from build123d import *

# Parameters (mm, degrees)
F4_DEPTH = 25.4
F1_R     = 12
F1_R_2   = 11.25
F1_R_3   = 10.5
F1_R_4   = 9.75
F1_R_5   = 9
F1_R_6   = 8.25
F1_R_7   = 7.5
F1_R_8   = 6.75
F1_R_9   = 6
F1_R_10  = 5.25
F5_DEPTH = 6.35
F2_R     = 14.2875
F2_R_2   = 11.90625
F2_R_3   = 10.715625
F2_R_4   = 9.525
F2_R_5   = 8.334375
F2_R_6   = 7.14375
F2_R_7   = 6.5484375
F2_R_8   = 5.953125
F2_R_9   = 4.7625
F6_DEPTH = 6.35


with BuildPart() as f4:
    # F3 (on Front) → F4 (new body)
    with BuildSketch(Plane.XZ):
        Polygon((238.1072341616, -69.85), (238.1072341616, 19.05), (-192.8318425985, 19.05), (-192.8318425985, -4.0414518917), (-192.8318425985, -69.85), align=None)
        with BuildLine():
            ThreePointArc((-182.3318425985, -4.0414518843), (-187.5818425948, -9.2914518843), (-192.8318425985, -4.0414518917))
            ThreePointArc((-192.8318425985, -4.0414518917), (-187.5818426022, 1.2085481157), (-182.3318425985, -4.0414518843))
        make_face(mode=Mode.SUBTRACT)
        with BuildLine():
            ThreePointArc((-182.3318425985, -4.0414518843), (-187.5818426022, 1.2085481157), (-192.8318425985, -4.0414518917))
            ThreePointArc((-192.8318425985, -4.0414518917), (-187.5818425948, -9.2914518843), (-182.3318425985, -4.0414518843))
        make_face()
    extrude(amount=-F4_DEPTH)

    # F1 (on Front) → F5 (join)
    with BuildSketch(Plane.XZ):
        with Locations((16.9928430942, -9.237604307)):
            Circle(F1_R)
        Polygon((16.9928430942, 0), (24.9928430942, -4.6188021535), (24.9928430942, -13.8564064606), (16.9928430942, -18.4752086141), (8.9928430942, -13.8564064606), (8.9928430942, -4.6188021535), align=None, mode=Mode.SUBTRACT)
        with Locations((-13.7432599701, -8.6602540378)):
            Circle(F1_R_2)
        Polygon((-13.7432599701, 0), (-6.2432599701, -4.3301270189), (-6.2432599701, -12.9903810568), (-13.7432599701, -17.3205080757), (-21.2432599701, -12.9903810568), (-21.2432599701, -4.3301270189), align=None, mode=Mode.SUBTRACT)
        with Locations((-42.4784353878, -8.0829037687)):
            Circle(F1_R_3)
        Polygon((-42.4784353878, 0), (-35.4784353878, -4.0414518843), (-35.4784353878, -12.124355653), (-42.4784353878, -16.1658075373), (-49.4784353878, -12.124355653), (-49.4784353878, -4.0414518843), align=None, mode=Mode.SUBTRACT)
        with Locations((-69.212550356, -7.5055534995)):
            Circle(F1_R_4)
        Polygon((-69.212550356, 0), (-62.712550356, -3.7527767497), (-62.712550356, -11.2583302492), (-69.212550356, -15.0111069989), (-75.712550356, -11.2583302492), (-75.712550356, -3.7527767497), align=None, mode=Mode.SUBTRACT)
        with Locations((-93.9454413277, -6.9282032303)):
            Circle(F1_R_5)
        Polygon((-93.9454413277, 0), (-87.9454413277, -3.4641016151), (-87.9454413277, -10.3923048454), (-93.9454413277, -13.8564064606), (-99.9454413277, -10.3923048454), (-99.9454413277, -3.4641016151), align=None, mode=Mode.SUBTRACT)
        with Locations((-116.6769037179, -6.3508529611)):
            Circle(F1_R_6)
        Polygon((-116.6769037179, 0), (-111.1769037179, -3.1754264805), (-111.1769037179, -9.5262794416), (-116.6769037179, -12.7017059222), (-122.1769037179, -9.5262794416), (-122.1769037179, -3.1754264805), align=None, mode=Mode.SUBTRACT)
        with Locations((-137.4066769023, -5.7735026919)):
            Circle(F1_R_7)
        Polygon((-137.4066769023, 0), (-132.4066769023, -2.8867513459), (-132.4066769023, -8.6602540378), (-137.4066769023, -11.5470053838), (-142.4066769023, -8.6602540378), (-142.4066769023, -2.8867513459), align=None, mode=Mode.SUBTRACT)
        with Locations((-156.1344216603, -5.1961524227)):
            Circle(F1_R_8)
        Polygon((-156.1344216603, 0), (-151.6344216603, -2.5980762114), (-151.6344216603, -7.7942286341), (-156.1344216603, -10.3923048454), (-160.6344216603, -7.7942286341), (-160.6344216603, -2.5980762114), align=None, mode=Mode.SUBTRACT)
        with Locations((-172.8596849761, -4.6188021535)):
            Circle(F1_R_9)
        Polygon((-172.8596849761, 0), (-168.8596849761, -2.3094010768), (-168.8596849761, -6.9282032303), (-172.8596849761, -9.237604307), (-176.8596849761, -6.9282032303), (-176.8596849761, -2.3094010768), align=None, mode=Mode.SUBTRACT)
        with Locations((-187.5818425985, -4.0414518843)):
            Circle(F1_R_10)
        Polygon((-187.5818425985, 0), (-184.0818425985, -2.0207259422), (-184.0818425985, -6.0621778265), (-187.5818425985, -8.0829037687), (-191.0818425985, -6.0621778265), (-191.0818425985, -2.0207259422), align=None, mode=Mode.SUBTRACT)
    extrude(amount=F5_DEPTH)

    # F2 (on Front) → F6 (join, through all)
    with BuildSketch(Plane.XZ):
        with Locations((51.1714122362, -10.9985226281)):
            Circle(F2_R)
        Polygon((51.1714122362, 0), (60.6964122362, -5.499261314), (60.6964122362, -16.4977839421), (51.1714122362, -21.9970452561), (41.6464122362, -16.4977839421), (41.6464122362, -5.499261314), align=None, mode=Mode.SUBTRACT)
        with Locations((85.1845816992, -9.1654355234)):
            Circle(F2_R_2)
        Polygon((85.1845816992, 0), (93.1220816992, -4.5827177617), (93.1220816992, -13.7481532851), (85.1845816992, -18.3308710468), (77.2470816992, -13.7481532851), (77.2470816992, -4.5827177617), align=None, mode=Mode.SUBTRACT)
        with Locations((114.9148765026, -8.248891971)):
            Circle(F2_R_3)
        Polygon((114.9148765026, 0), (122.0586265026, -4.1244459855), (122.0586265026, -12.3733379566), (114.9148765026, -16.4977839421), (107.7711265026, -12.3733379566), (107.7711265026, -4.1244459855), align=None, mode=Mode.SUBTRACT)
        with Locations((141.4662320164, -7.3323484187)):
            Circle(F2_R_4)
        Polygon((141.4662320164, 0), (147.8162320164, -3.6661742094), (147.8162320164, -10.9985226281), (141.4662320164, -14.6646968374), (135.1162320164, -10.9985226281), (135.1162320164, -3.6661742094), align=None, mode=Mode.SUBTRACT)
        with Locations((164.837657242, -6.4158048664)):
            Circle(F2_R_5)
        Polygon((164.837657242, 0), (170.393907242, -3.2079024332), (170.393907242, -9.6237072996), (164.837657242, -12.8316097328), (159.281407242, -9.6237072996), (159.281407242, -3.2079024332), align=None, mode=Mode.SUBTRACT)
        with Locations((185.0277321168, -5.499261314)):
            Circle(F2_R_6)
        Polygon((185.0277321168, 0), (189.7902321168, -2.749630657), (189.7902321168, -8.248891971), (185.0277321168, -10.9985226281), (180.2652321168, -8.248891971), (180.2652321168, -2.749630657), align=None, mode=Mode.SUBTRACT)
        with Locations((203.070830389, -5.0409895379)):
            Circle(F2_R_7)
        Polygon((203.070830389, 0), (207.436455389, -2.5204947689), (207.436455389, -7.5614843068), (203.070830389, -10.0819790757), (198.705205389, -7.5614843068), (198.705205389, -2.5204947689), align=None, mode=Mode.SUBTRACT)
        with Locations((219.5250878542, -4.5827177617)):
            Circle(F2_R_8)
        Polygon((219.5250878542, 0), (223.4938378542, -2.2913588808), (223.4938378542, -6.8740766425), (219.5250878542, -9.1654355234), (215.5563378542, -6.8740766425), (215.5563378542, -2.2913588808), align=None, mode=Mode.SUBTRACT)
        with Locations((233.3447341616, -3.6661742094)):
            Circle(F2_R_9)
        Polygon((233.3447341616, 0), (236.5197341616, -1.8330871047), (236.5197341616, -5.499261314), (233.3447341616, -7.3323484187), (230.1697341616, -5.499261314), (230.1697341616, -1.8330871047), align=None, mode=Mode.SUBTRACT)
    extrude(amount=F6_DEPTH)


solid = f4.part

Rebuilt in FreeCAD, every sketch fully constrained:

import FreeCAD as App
import Part
import Sketcher
from FreeCAD import Vector
Q = App.Units.Quantity


def add_polygon(sketch, points):
    """Adds a closed chain of lines whose ends are joined by coincident constraints."""
    first, n = sketch.GeometryCount, len(points)
    for a, b in zip(points, points[1:] + points[:1]):
        sketch.addGeometry(Part.LineSegment(App.Vector(*a, 0), App.Vector(*b, 0)), False)
    for i in range(n):
        sketch.addConstraint(Sketcher.Constraint("Coincident", first + i, 2, first + (i + 1) % n, 1))

doc = App.newDocument("Part")
body = doc.addObject("PartDesign::Body", "Body")

# Sketch on XZ plane
sketch1 = body.newObject("Sketcher::SketchObject", "Sketch")
sketch1.AttachmentSupport = (doc.getObject("XZ_Plane"), [""])
sketch1.MapMode = "FlatFace"
add_polygon(sketch1, [(-193, -70), (238, -70), (238, 19), (-193, 19)])  # lines 0-3
sketch1.addConstraint([
    Sketcher.Constraint("Horizontal", 0),
    Sketcher.Constraint("Vertical", 1),
    Sketcher.Constraint("Horizontal", 2),
    Sketcher.Constraint("Vertical", 3),
    Sketcher.Constraint("DistanceY", 1, 1, 1, 2, Q("3.5 in")),
    Sketcher.Constraint("DistanceY", 0, 2, -1, 1, Q("2.75 in")),
    Sketcher.Constraint("DistanceX", 0, 1, 0, 2, Q("430.939077 mm")),
    Sketcher.Constraint("DistanceX", -1, 1, 0, 2, Q("238.107234 mm")),
])
pad1 = body.newObject("PartDesign::Pad", "Pad")
pad1.Profile = sketch1
pad1.Length = Q("1 in")
pad1.Reversed = True

# Sketch on XZ plane
sketch2 = body.newObject("Sketcher::SketchObject", "Sketch001")
sketch2.AttachmentSupport = (doc.getObject("XZ_Plane"), [""])
sketch2.MapMode = "FlatFace"
sketch2.addGeometry(Part.Circle(Vector(17, -9.2, 0), Vector(0, 0, 1), 12), False)  # 0
add_polygon(sketch2, [(9, -4.6), (17, 0), (25, -4.6), (25, -13.9), (17, -18.5), (9, -13.9)])  # lines 1-6
sketch2.addGeometry(Part.Circle(Vector(-13.7, -8.7, 0), Vector(0, 0, 1), 11.2), False)  # 7
add_polygon(sketch2, [(-21.2, -4.3), (-13.7, 0), (-6.2, -4.3), (-6.2, -13), (-13.7, -17.3), (-21.2, -13)])  # lines 8-13
sketch2.addGeometry(Part.Circle(Vector(-42.5, -8.1, 0), Vector(0, 0, 1), 10.5), False)  # 14
add_polygon(sketch2, [(-49.5, -4), (-42.5, 0), (-35.5, -4), (-35.5, -12.1), (-42.5, -16.2), (-49.5, -12.1)])  # lines 15-20
sketch2.addGeometry(Part.Circle(Vector(-69.2, -7.5, 0), Vector(0, 0, 1), 9.8), False)  # 21
add_polygon(sketch2, [(-75.7, -3.8), (-69.2, 0), (-62.7, -3.8), (-62.7, -11.3), (-69.2, -15), (-75.7, -11.3)])  # lines 22-27
sketch2.addGeometry(Part.Circle(Vector(-93.9, -6.9, 0), Vector(0, 0, 1), 9), False)  # 28
add_polygon(sketch2, [(-99.9, -3.5), (-93.9, 0), (-87.9, -3.5), (-87.9, -10.4), (-93.9, -13.9), (-99.9, -10.4)])  # lines 29-34
sketch2.addGeometry(Part.Circle(Vector(-116.7, -6.4, 0), Vector(0, 0, 1), 8.2), False)  # 35
add_polygon(sketch2, [(-122.2, -3.2), (-116.7, 0), (-111.2, -3.2), (-111.2, -9.5), (-116.7, -12.7), (-122.2, -9.5)])  # lines 36-41
sketch2.addGeometry(Part.Circle(Vector(-137.4, -5.8, 0), Vector(0, 0, 1), 7.5), False)  # 42
add_polygon(sketch2, [(-142.4, -2.9), (-137.4, 0), (-132.4, -2.9), (-132.4, -8.7), (-137.4, -11.5), (-142.4, -8.7)])  # lines 43-48
sketch2.addGeometry(Part.Circle(Vector(-156.1, -5.2, 0), Vector(0, 0, 1), 6.8), False)  # 49
add_polygon(sketch2, [(-160.6, -2.6), (-156.1, 0), (-151.6, -2.6), (-151.6, -7.8), (-156.1, -10.4), (-160.6, -7.8)])  # lines 50-55
sketch2.addGeometry(Part.Circle(Vector(-172.9, -4.6, 0), Vector(0, 0, 1), 6), False)  # 56
add_polygon(sketch2, [(-176.9, -2.3), (-172.9, 0), (-168.9, -2.3), (-168.9, -6.9), (-172.9, -9.2), (-176.9, -6.9)])  # lines 57-62
sketch2.addGeometry(Part.Circle(Vector(-187.6, -4, 0), Vector(0, 0, 1), 5.2), False)  # 63
add_polygon(sketch2, [(-191.1, -2), (-187.6, 0), (-184.1, -2), (-184.1, -6.1), (-187.6, -8.1), (-191.1, -6.1)])  # lines 64-69
sketch2.addConstraint([
    Sketcher.Constraint("Vertical", 3),
    Sketcher.Constraint("Vertical", 6),
    Sketcher.Constraint("Vertical", 10),
    Sketcher.Constraint("Vertical", 13),
    Sketcher.Constraint("Vertical", 17),
    Sketcher.Constraint("Vertical", 20),
    Sketcher.Constraint("Vertical", 24),
    Sketcher.Constraint("Vertical", 27),
    Sketcher.Constraint("Vertical", 31),
    Sketcher.Constraint("Vertical", 34),
    Sketcher.Constraint("Vertical", 38),
    Sketcher.Constraint("Vertical", 41),
    Sketcher.Constraint("Vertical", 45),
    Sketcher.Constraint("Vertical", 48),
    Sketcher.Constraint("Vertical", 52),
    Sketcher.Constraint("Vertical", 55),
    Sketcher.Constraint("Vertical", 59),
    Sketcher.Constraint("Vertical", 62),
    Sketcher.Constraint("Vertical", 66),
    Sketcher.Constraint("Vertical", 69),
    Sketcher.Constraint("PointOnObject", 1, 2, -1),
    Sketcher.Constraint("PointOnObject", 8, 2, -1),
    Sketcher.Constraint("PointOnObject", 15, 2, -1),
    Sketcher.Constraint("PointOnObject", 22, 2, -1),
    Sketcher.Constraint("PointOnObject", 29, 2, -1),
    Sketcher.Constraint("PointOnObject", 36, 2, -1),
    Sketcher.Constraint("PointOnObject", 43, 2, -1),
    Sketcher.Constraint("PointOnObject", 50, 2, -1),
    Sketcher.Constraint("PointOnObject", 57, 2, -1),
    Sketcher.Constraint("PointOnObject", 64, 2, -1),
    Sketcher.Constraint("Parallel", 1, 4),
    Sketcher.Constraint("Parallel", 2, 5),
    Sketcher.Constraint("Parallel", 4, 8),
    Sketcher.Constraint("Parallel", 5, 9),
    Sketcher.Constraint("Parallel", 8, 11),
    Sketcher.Constraint("Parallel", 9, 12),
    Sketcher.Constraint("Parallel", 11, 15),
    Sketcher.Constraint("Parallel", 12, 16),
    Sketcher.Constraint("Parallel", 15, 18),
    Sketcher.Constraint("Parallel", 16, 19),
    Sketcher.Constraint("Parallel", 18, 22),
    Sketcher.Constraint("Parallel", 19, 23),
    Sketcher.Constraint("Parallel", 22, 25),
    Sketcher.Constraint("Parallel", 23, 26),
    Sketcher.Constraint("Parallel", 25, 29),
    Sketcher.Constraint("Parallel", 26, 30),
    Sketcher.Constraint("Parallel", 29, 32),
    Sketcher.Constraint("Parallel", 30, 33),
    Sketcher.Constraint("Parallel", 32, 36),
    Sketcher.Constraint("Parallel", 33, 37),
    Sketcher.Constraint("Parallel", 36, 39),
    Sketcher.Constraint("Parallel", 37, 40),
    Sketcher.Constraint("Parallel", 39, 43),
    Sketcher.Constraint("Parallel", 40, 44),
    Sketcher.Constraint("Parallel", 43, 46),
    Sketcher.Constraint("Parallel", 44, 47),
    Sketcher.Constraint("Parallel", 46, 50),
    Sketcher.Constraint("Parallel", 47, 51),
    Sketcher.Constraint("Parallel", 50, 53),
    Sketcher.Constraint("Parallel", 51, 54),
    Sketcher.Constraint("Parallel", 53, 57),
    Sketcher.Constraint("Parallel", 54, 58),
    Sketcher.Constraint("Parallel", 57, 60),
    Sketcher.Constraint("Parallel", 58, 61),
    Sketcher.Constraint("Parallel", 60, 64),
    Sketcher.Constraint("Parallel", 61, 65),
    Sketcher.Constraint("Parallel", 64, 67),
    Sketcher.Constraint("Parallel", 65, 68),
    Sketcher.Constraint("Horizontal", 56, 3, 2, 2),
    Sketcher.Constraint("Horizontal", 3, 2, 5, 2),
    Sketcher.Constraint("Horizontal", 2, 2, 6, 2),
    Sketcher.Constraint("Horizontal", 10, 2, 12, 2),
    Sketcher.Constraint("Horizontal", 9, 2, 13, 2),
    Sketcher.Constraint("Horizontal", 63, 3, 16, 2),
    Sketcher.Constraint("Horizontal", 17, 2, 19, 2),
    Sketcher.Constraint("Horizontal", 16, 2, 20, 2),
    Sketcher.Constraint("Horizontal", 24, 2, 26, 2),
    Sketcher.Constraint("Horizontal", 23, 2, 27, 2),
    Sketcher.Constraint("Horizontal", 5, 2, 32, 2),
    Sketcher.Constraint("Horizontal", 31, 2, 33, 2),
    Sketcher.Constraint("Horizontal", 30, 2, 34, 2),
    Sketcher.Constraint("Horizontal", 38, 2, 40, 2),
    Sketcher.Constraint("Horizontal", 37, 2, 41, 2),
    Sketcher.Constraint("Horizontal", 7, 3, 45, 2),
    Sketcher.Constraint("Horizontal", 45, 2, 47, 2),
    Sketcher.Constraint("Horizontal", 44, 2, 48, 2),
    Sketcher.Constraint("Horizontal", 33, 2, 53, 2),
    Sketcher.Constraint("Horizontal", 52, 2, 54, 2),
    Sketcher.Constraint("Horizontal", 51, 2, 55, 2),
    Sketcher.Constraint("Horizontal", 28, 3, 59, 2),
    Sketcher.Constraint("Horizontal", 0, 3, 60, 2),
    Sketcher.Constraint("Horizontal", 59, 2, 61, 2),
    Sketcher.Constraint("Horizontal", 58, 2, 62, 2),
    Sketcher.Constraint("Horizontal", 14, 3, 67, 2),
    Sketcher.Constraint("Horizontal", 66, 2, 68, 2),
    Sketcher.Constraint("Horizontal", 65, 2, 69, 2),
    Sketcher.Constraint("Vertical", 0, 3, 1, 2),
    Sketcher.Constraint("Vertical", 1, 2, 4, 2),
    Sketcher.Constraint("Vertical", 7, 3, 8, 2),
    Sketcher.Constraint("Vertical", 14, 3, 15, 2),
    Sketcher.Constraint("Vertical", 21, 3, 22, 2),
    Sketcher.Constraint("Vertical", 28, 3, 29, 2),
    Sketcher.Constraint("Vertical", 35, 3, 36, 2),
    Sketcher.Constraint("Vertical", 42, 3, 43, 2),
    Sketcher.Constraint("Vertical", 49, 3, 50, 2),
    Sketcher.Constraint("Vertical", 56, 3, 57, 2),
    Sketcher.Constraint("Vertical", 63, 3, 64, 2),
    Sketcher.Constraint("Angle", 1, Q("30 deg")),
    Sketcher.Constraint("Diameter", 0, Q("24 mm")),
    Sketcher.Constraint("Diameter", 7, Q("22.5 mm")),
    Sketcher.Constraint("Diameter", 14, Q("21 mm")),
    Sketcher.Constraint("Diameter", 21, Q("19.5 mm")),
    Sketcher.Constraint("Diameter", 28, Q("18 mm")),
    Sketcher.Constraint("Diameter", 35, Q("16.5 mm")),
    Sketcher.Constraint("Diameter", 42, Q("15 mm")),
    Sketcher.Constraint("Diameter", 49, Q("13.5 mm")),
    Sketcher.Constraint("Diameter", 56, Q("12 mm")),
    Sketcher.Constraint("Diameter", 63, Q("10.5 mm")),
    Sketcher.Constraint("DistanceY", 66, 2, 66, 1, Q("4.041452 mm")),
    Sketcher.Constraint("DistanceY", 30, 2, -1, 1, Q("3.464102 mm")),
    Sketcher.Constraint("DistanceY", 58, 2, -1, 1, Q("2.309401 mm")),
    Sketcher.Constraint("Distance", 64, Q("4.041452 mm")),
    Sketcher.Constraint("DistanceY", 3, 2, 3, 1, Q("9.237604 mm")),
    Sketcher.Constraint("DistanceY", 10, 2, 10, 1, Q("8.660254 mm")),
    Sketcher.Constraint("DistanceY", 17, 2, 17, 1, Q("8.082904 mm")),
    Sketcher.Constraint("DistanceY", 24, 2, 24, 1, Q("7.505553 mm")),
    Sketcher.Constraint("DistanceY", 31, 2, 31, 1, Q("6.928203 mm")),
    Sketcher.Constraint("DistanceY", 38, 2, 38, 1, Q("6.350853 mm")),
    Sketcher.Constraint("DistanceY", 45, 2, 45, 1, Q("5.773503 mm")),
    Sketcher.Constraint("DistanceY", 52, 2, 52, 1, Q("5.196152 mm")),
    Sketcher.Constraint("DistanceY", 59, 2, 59, 1, Q("4.618802 mm")),
    Sketcher.Constraint("DistanceX", 7, 3, -1, 1, Q("13.74326 mm")),
    Sketcher.Constraint("DistanceX", 21, 3, -1, 1, Q("69.21255 mm")),
    Sketcher.Constraint("DistanceX", 28, 3, -1, 1, Q("93.945441 mm")),
    Sketcher.Constraint("DistanceX", 49, 3, -1, 1, Q("156.134422 mm")),
    Sketcher.Constraint("DistanceY", 63, 3, -1, 1, Q("4.041452 mm")),
    Sketcher.Constraint("DistanceX", 9, 2, -1, 1, Q("6.24326 mm")),
    Sketcher.Constraint("DistanceX", 23, 2, -1, 1, Q("62.71255 mm")),
    Sketcher.Constraint("DistanceY", 38, 2, -1, 1, Q("9.526279 mm")),
    Sketcher.Constraint("DistanceY", 44, 2, -1, 1, Q("2.886751 mm")),
    Sketcher.Constraint("DistanceX", -1, 1, 0, 3, Q("16.992843 mm")),
    Sketcher.Constraint("DistanceX", 14, 3, -1, 1, Q("42.478435 mm")),
    Sketcher.Constraint("DistanceY", 21, 3, -1, 1, Q("7.505554 mm")),
    Sketcher.Constraint("DistanceX", 35, 3, -1, 1, Q("116.676904 mm")),
    Sketcher.Constraint("DistanceY", 35, 3, -1, 1, Q("6.350853 mm")),
    Sketcher.Constraint("DistanceX", 42, 3, -1, 1, Q("137.406677 mm")),
    Sketcher.Constraint("DistanceY", 42, 3, -1, 1, Q("5.773503 mm")),
    Sketcher.Constraint("DistanceY", 49, 3, -1, 1, Q("5.196152 mm")),
    Sketcher.Constraint("DistanceX", 56, 3, -1, 1, Q("172.859685 mm")),
    Sketcher.Constraint("DistanceX", 63, 3, -1, 1, Q("187.581843 mm")),
])
pad2 = body.newObject("PartDesign::Pad", "Pad001")
pad2.Profile = sketch2
pad2.Length = Q("0.25 in")

# Sketch on XZ plane
sketch3 = body.newObject("Sketcher::SketchObject", "Sketch002")
sketch3.AttachmentSupport = (doc.getObject("XZ_Plane"), [""])
sketch3.MapMode = "FlatFace"
sketch3.addGeometry(Part.Circle(Vector(51.2, -11, 0), Vector(0, 0, 1), 14.3), False)  # 0
add_polygon(sketch3, [(41.6, -5.5), (51.2, 0), (60.7, -5.5), (60.7, -16.5), (51.2, -22), (41.6, -16.5)])  # lines 1-6
sketch3.addGeometry(Part.Circle(Vector(85.2, -9.2, 0), Vector(0, 0, 1), 11.9), False)  # 7
add_polygon(sketch3, [(77.2, -4.6), (85.2, 0), (93.1, -4.6), (93.1, -13.7), (85.2, -18.3), (77.2, -13.7)])  # lines 8-13
sketch3.addGeometry(Part.Circle(Vector(114.9, -8.2, 0), Vector(0, 0, 1), 10.7), False)  # 14
add_polygon(sketch3, [(107.8, -4.1), (114.9, 0), (122.1, -4.1), (122.1, -12.4), (114.9, -16.5), (107.8, -12.4)])  # lines 15-20
sketch3.addGeometry(Part.Circle(Vector(141.5, -7.3, 0), Vector(0, 0, 1), 9.5), False)  # 21
add_polygon(sketch3, [(135.1, -3.7), (141.5, 0), (147.8, -3.7), (147.8, -11), (141.5, -14.7), (135.1, -11)])  # lines 22-27
sketch3.addGeometry(Part.Circle(Vector(164.8, -6.4, 0), Vector(0, 0, 1), 8.3), False)  # 28
add_polygon(sketch3, [(159.3, -3.2), (164.8, 0), (170.4, -3.2), (170.4, -9.6), (164.8, -12.8), (159.3, -9.6)])  # lines 29-34
sketch3.addGeometry(Part.Circle(Vector(185, -5.5, 0), Vector(0, 0, 1), 7.1), False)  # 35
add_polygon(sketch3, [(180.3, -2.7), (185, 0), (189.8, -2.7), (189.8, -8.2), (185, -11), (180.3, -8.2)])  # lines 36-41
sketch3.addGeometry(Part.Circle(Vector(203.1, -5, 0), Vector(0, 0, 1), 6.5), False)  # 42
add_polygon(sketch3, [(198.7, -2.5), (203.1, 0), (207.4, -2.5), (207.4, -7.6), (203.1, -10.1), (198.7, -7.6)])  # lines 43-48
sketch3.addGeometry(Part.Circle(Vector(219.5, -4.6, 0), Vector(0, 0, 1), 6), False)  # 49
add_polygon(sketch3, [(215.6, -2.3), (219.5, 0), (223.5, -2.3), (223.5, -6.9), (219.5, -9.2), (215.6, -6.9)])  # lines 50-55
sketch3.addGeometry(Part.Circle(Vector(233.3, -3.7, 0), Vector(0, 0, 1), 4.8), False)  # 56
add_polygon(sketch3, [(230.2, -1.8), (233.3, 0), (236.5, -1.8), (236.5, -5.5), (233.3, -7.3), (230.2, -5.5)])  # lines 57-62
sketch3.addConstraint([
    Sketcher.Constraint("Vertical", 3),
    Sketcher.Constraint("Vertical", 6),
    Sketcher.Constraint("Vertical", 10),
    Sketcher.Constraint("Vertical", 13),
    Sketcher.Constraint("Vertical", 17),
    Sketcher.Constraint("Vertical", 20),
    Sketcher.Constraint("Vertical", 24),
    Sketcher.Constraint("Vertical", 27),
    Sketcher.Constraint("Vertical", 31),
    Sketcher.Constraint("Vertical", 34),
    Sketcher.Constraint("Vertical", 38),
    Sketcher.Constraint("Vertical", 41),
    Sketcher.Constraint("Vertical", 45),
    Sketcher.Constraint("Vertical", 48),
    Sketcher.Constraint("Vertical", 52),
    Sketcher.Constraint("Vertical", 55),
    Sketcher.Constraint("Vertical", 59),
    Sketcher.Constraint("Vertical", 62),
    Sketcher.Constraint("PointOnObject", 1, 2, -1),
    Sketcher.Constraint("PointOnObject", 8, 2, -1),
    Sketcher.Constraint("PointOnObject", 15, 2, -1),
    Sketcher.Constraint("PointOnObject", 22, 2, -1),
    Sketcher.Constraint("PointOnObject", 29, 2, -1),
    Sketcher.Constraint("PointOnObject", 36, 2, -1),
    Sketcher.Constraint("PointOnObject", 43, 2, -1),
    Sketcher.Constraint("PointOnObject", 50, 2, -1),
    Sketcher.Constraint("PointOnObject", 57, 2, -1),
    Sketcher.Constraint("Parallel", 1, 4),
    Sketcher.Constraint("Parallel", 2, 5),
    Sketcher.Constraint("Parallel", 4, 8),
    Sketcher.Constraint("Parallel", 5, 9),
    Sketcher.Constraint("Parallel", 8, 11),
    Sketcher.Constraint("Parallel", 9, 12),
    Sketcher.Constraint("Parallel", 11, 15),
    Sketcher.Constraint("Parallel", 12, 16),
    Sketcher.Constraint("Parallel", 15, 18),
    Sketcher.Constraint("Parallel", 16, 19),
    Sketcher.Constraint("Parallel", 18, 22),
    Sketcher.Constraint("Parallel", 19, 23),
    Sketcher.Constraint("Parallel", 22, 25),
    Sketcher.Constraint("Parallel", 23, 26),
    Sketcher.Constraint("Parallel", 25, 29),
    Sketcher.Constraint("Parallel", 26, 30),
    Sketcher.Constraint("Parallel", 29, 32),
    Sketcher.Constraint("Parallel", 30, 33),
    Sketcher.Constraint("Parallel", 32, 36),
    Sketcher.Constraint("Parallel", 33, 37),
    Sketcher.Constraint("Parallel", 36, 39),
    Sketcher.Constraint("Parallel", 37, 40),
    Sketcher.Constraint("Parallel", 39, 43),
    Sketcher.Constraint("Parallel", 40, 44),
    Sketcher.Constraint("Parallel", 43, 46),
    Sketcher.Constraint("Parallel", 44, 47),
    Sketcher.Constraint("Parallel", 46, 50),
    Sketcher.Constraint("Parallel", 47, 51),
    Sketcher.Constraint("Parallel", 50, 53),
    Sketcher.Constraint("Parallel", 51, 54),
    Sketcher.Constraint("Parallel", 53, 57),
    Sketcher.Constraint("Parallel", 54, 58),
    Sketcher.Constraint("Parallel", 57, 60),
    Sketcher.Constraint("Parallel", 58, 61),
    Sketcher.Constraint("Horizontal", 35, 3, 2, 2),
    Sketcher.Constraint("Horizontal", 3, 2, 5, 2),
    Sketcher.Constraint("Horizontal", 2, 2, 6, 2),
    Sketcher.Constraint("Horizontal", 49, 3, 9, 2),
    Sketcher.Constraint("Horizontal", 10, 2, 12, 2),
    Sketcher.Constraint("Horizontal", 9, 2, 13, 2),
    Sketcher.Constraint("Horizontal", 5, 2, 18, 2),
    Sketcher.Constraint("Horizontal", 17, 2, 19, 2),
    Sketcher.Constraint("Horizontal", 16, 2, 20, 2),
    Sketcher.Constraint("Horizontal", 56, 3, 23, 2),
    Sketcher.Constraint("Horizontal", 0, 3, 24, 2),
    Sketcher.Constraint("Horizontal", 24, 2, 26, 2),
    Sketcher.Constraint("Horizontal", 23, 2, 27, 2),
    Sketcher.Constraint("Horizontal", 31, 2, 33, 2),
    Sketcher.Constraint("Horizontal", 30, 2, 34, 2),
    Sketcher.Constraint("Horizontal", 14, 3, 38, 2),
    Sketcher.Constraint("Horizontal", 26, 2, 39, 2),
    Sketcher.Constraint("Horizontal", 38, 2, 40, 2),
    Sketcher.Constraint("Horizontal", 37, 2, 41, 2),
    Sketcher.Constraint("Horizontal", 45, 2, 47, 2),
    Sketcher.Constraint("Horizontal", 44, 2, 48, 2),
    Sketcher.Constraint("Horizontal", 7, 3, 53, 2),
    Sketcher.Constraint("Horizontal", 52, 2, 54, 2),
    Sketcher.Constraint("Horizontal", 51, 2, 55, 2),
    Sketcher.Constraint("Horizontal", 6, 2, 59, 2),
    Sketcher.Constraint("Horizontal", 21, 3, 60, 2),
    Sketcher.Constraint("Horizontal", 59, 2, 61, 2),
    Sketcher.Constraint("Horizontal", 58, 2, 62, 2),
    Sketcher.Constraint("Vertical", 0, 3, 1, 2),
    Sketcher.Constraint("Vertical", 1, 2, 4, 2),
    Sketcher.Constraint("Vertical", 7, 3, 8, 2),
    Sketcher.Constraint("Vertical", 14, 3, 15, 2),
    Sketcher.Constraint("Vertical", 21, 3, 22, 2),
    Sketcher.Constraint("Vertical", 28, 3, 29, 2),
    Sketcher.Constraint("Vertical", 35, 3, 36, 2),
    Sketcher.Constraint("Vertical", 42, 3, 43, 2),
    Sketcher.Constraint("Vertical", 49, 3, 50, 2),
    Sketcher.Constraint("Vertical", 56, 3, 57, 2),
    Sketcher.Constraint("Diameter", 21, Q("0.75 in")),
    Sketcher.Constraint("Diameter", 0, Q("1.125 in")),
    Sketcher.Constraint("Diameter", 7, Q("0.9375 in")),
    Sketcher.Constraint("Diameter", 14, Q("0.84375 in")),
    Sketcher.Constraint("Diameter", 28, Q("0.65625 in")),
    Sketcher.Constraint("Diameter", 35, Q("0.5625 in")),
    Sketcher.Constraint("Diameter", 42, Q("0.515625 in")),
    Sketcher.Constraint("Diameter", 49, Q("0.46875 in")),
    Sketcher.Constraint("Diameter", 56, Q("0.375 in")),
    Sketcher.Constraint("Angle", 1, Q("30 deg")),
    Sketcher.Constraint("DistanceY", 17, 2, 17, 1, Q("8.248892 mm")),
    Sketcher.Constraint("DistanceY", 24, 2, 24, 1, Q("7.332348 mm")),
    Sketcher.Constraint("DistanceY", 38, 2, 38, 1, Q("5.499261 mm")),
    Sketcher.Constraint("DistanceY", 45, 2, 45, 1, Q("5.04099 mm")),
    Sketcher.Constraint("Distance", 15, Q("8.248892 mm")),
    Sketcher.Constraint("Distance", 22, Q("7.332348 mm")),
    Sketcher.Constraint("Distance", 43, Q("5.04099 mm")),
    Sketcher.Constraint("DistanceY", 3, 2, 3, 1, Q("10.998523 mm")),
    Sketcher.Constraint("DistanceY", 10, 2, 10, 1, Q("9.165436 mm")),
    Sketcher.Constraint("DistanceY", 31, 2, 31, 1, Q("6.415805 mm")),
    Sketcher.Constraint("DistanceY", 52, 2, 52, 1, Q("4.582718 mm")),
    Sketcher.Constraint("DistanceY", 59, 2, 59, 1, Q("3.666174 mm")),
    Sketcher.Constraint("DistanceX", -1, 1, 7, 3, Q("85.184582 mm")),
    Sketcher.Constraint("DistanceX", -1, 1, 42, 3, Q("203.07083 mm")),
    Sketcher.Constraint("DistanceY", 42, 3, -1, 1, Q("5.04099 mm")),
    Sketcher.Constraint("DistanceX", -1, 1, 9, 2, Q("93.122082 mm")),
    Sketcher.Constraint("DistanceY", 32, 2, -1, 1, Q("12.83161 mm")),
    Sketcher.Constraint("DistanceY", 51, 2, -1, 1, Q("2.291359 mm")),
    Sketcher.Constraint("DistanceX", -1, 1, 0, 3, Q("51.171412 mm")),
    Sketcher.Constraint("DistanceX", -1, 1, 14, 3, Q("114.914877 mm")),
    Sketcher.Constraint("DistanceX", -1, 1, 21, 3, Q("141.466232 mm")),
    Sketcher.Constraint("DistanceX", -1, 1, 28, 3, Q("164.837657 mm")),
    Sketcher.Constraint("DistanceY", 28, 3, -1, 1, Q("6.415805 mm")),
    Sketcher.Constraint("DistanceX", -1, 1, 35, 3, Q("185.027732 mm")),
    Sketcher.Constraint("DistanceX", -1, 1, 49, 3, Q("219.525088 mm")),
    Sketcher.Constraint("DistanceX", -1, 1, 56, 3, Q("233.344734 mm")),
])
pad3 = body.newObject("PartDesign::Pad", "Pad002")
pad3.Profile = sketch3
pad3.Length = Q("0.25 in")

doc.recompute()
